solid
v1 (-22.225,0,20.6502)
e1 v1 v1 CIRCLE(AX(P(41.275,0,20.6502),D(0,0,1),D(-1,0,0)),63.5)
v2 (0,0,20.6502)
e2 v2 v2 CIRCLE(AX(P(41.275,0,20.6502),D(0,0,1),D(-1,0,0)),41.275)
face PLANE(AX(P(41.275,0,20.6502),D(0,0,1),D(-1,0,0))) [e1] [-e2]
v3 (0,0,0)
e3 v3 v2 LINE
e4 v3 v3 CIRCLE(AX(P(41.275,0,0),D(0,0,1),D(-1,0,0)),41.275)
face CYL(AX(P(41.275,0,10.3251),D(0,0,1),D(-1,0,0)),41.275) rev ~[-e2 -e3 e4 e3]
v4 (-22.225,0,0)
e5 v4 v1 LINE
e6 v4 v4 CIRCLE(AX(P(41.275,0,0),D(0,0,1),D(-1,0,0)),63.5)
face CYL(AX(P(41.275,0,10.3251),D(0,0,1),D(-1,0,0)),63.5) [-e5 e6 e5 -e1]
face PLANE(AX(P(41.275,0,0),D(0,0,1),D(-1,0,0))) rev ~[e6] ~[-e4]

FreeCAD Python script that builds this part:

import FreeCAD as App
import Part
import Sketcher
Q = App.Units.Quantity


def add_polygon(sketch, points):
    """Adds a closed chain of lines whose ends are joined by coincident constraints."""
    first, n = sketch.GeometryCount, len(points)
    for a, b in zip(points, points[1:] + points[:1]):
        sketch.addGeometry(Part.LineSegment(App.Vector(*a, 0), App.Vector(*b, 0)), False)
    for i in range(n):
        sketch.addConstraint(Sketcher.Constraint("Coincident", first + i, 2, first + (i + 1) % n, 1))

doc = App.newDocument("Part")
body = doc.addObject("PartDesign::Body", "Body")

# Sketch on XZ plane
sketch1 = body.newObject("Sketcher::SketchObject", "Sketch")
sketch1.AttachmentSupport = (doc.getObject("XZ_Plane"), [""])
sketch1.MapMode = "FlatFace"
add_polygon(sketch1, [(-3.175, 20.6502), (-3.175, 0), (0, 0), (0, 20.6502)])  # lines 0-3
sketch1.addGeometry(Part.LineSegment(App.Vector(44.040905, 0, 0), App.Vector(44.040905, 20.6502, 0)), True)  # axis
sketch1.addConstraint(Sketcher.Constraint("Vertical", 0))
sketch1.addConstraint(Sketcher.Constraint("Horizontal", 1))
sketch1.addConstraint(Sketcher.Constraint("Vertical", 2))
sketch1.addConstraint(Sketcher.Constraint("Horizontal", 3))
sketch1.addConstraint(Sketcher.Constraint("Vertical", 4))
sketch1.addConstraint(Sketcher.Constraint("Coincident", 1, 2, -1, 1))
sketch1.addConstraint(Sketcher.Constraint("PointOnObject", 4, 1, -1))
sketch1.addConstraint(Sketcher.Constraint("Horizontal", 3, 2, 4, 2))
sketch1.addConstraint(Sketcher.Constraint("DistanceX", 1, 1, 1, 2, Q("0.125 in")))
sketch1.addConstraint(Sketcher.Constraint("DistanceY", 0, 2, 0, 1, Q("0.813 in")))
sketch1.addConstraint(Sketcher.Constraint("DistanceX", -1, 1, 4, 1, 44.040905))
revolution = body.newObject("PartDesign::Revolution", "Revolution")
revolution.Profile = sketch1
revolution.ReferenceAxis = (sketch1, ["Axis0"])
revolution.Angle = 360

# Sketch on XZ plane
sketch2 = body.newObject("Sketcher::SketchObject", "Sketch001")
sketch2.AttachmentSupport = (doc.getObject("XZ_Plane"), [""])
sketch2.MapMode = "FlatFace"
add_polygon(sketch2, [(-22.225, 20.6502), (-22.225, 0), (0, 0), (0, 20.6502)])  # lines 0-3
sketch2.addGeometry(Part.LineSegment(App.Vector(41.275, 0, 0), App.Vector(41.275, 20.6502, 0)), True)  # axis
sketch2.addConstraint(Sketcher.Constraint("Vertical", 0))
sketch2.addConstraint(Sketcher.Constraint("Horizontal", 1))
sketch2.addConstraint(Sketcher.Constraint("Vertical", 2))
sketch2.addConstraint(Sketcher.Constraint("Horizontal", 3))
sketch2.addConstraint(Sketcher.Constraint("Vertical", 4))
sketch2.addConstraint(Sketcher.Constraint("Coincident", 1, 2, -1, 1))
sketch2.addConstraint(Sketcher.Constraint("PointOnObject", 4, 1, -1))
sketch2.addConstraint(Sketcher.Constraint("Horizontal", 3, 2, 4, 2))
sketch2.addConstraint(Sketcher.Constraint("DistanceX", 0, 2, 4, 1, Q("2.5 in")))
sketch2.addConstraint(Sketcher.Constraint("DistanceX", 1, 1, 1, 2, Q("0.875 in")))
sketch2.addConstraint(Sketcher.Constraint("DistanceY", 0, 2, 0, 1, Q("0.813 in")))
revolution2 = body.newObject("PartDesign::Revolution", "Revolution001")
revolution2.Profile = sketch2
revolution2.ReferenceAxis = (sketch2, ["Axis0"])
revolution2.Angle = 360

doc.recompute()
